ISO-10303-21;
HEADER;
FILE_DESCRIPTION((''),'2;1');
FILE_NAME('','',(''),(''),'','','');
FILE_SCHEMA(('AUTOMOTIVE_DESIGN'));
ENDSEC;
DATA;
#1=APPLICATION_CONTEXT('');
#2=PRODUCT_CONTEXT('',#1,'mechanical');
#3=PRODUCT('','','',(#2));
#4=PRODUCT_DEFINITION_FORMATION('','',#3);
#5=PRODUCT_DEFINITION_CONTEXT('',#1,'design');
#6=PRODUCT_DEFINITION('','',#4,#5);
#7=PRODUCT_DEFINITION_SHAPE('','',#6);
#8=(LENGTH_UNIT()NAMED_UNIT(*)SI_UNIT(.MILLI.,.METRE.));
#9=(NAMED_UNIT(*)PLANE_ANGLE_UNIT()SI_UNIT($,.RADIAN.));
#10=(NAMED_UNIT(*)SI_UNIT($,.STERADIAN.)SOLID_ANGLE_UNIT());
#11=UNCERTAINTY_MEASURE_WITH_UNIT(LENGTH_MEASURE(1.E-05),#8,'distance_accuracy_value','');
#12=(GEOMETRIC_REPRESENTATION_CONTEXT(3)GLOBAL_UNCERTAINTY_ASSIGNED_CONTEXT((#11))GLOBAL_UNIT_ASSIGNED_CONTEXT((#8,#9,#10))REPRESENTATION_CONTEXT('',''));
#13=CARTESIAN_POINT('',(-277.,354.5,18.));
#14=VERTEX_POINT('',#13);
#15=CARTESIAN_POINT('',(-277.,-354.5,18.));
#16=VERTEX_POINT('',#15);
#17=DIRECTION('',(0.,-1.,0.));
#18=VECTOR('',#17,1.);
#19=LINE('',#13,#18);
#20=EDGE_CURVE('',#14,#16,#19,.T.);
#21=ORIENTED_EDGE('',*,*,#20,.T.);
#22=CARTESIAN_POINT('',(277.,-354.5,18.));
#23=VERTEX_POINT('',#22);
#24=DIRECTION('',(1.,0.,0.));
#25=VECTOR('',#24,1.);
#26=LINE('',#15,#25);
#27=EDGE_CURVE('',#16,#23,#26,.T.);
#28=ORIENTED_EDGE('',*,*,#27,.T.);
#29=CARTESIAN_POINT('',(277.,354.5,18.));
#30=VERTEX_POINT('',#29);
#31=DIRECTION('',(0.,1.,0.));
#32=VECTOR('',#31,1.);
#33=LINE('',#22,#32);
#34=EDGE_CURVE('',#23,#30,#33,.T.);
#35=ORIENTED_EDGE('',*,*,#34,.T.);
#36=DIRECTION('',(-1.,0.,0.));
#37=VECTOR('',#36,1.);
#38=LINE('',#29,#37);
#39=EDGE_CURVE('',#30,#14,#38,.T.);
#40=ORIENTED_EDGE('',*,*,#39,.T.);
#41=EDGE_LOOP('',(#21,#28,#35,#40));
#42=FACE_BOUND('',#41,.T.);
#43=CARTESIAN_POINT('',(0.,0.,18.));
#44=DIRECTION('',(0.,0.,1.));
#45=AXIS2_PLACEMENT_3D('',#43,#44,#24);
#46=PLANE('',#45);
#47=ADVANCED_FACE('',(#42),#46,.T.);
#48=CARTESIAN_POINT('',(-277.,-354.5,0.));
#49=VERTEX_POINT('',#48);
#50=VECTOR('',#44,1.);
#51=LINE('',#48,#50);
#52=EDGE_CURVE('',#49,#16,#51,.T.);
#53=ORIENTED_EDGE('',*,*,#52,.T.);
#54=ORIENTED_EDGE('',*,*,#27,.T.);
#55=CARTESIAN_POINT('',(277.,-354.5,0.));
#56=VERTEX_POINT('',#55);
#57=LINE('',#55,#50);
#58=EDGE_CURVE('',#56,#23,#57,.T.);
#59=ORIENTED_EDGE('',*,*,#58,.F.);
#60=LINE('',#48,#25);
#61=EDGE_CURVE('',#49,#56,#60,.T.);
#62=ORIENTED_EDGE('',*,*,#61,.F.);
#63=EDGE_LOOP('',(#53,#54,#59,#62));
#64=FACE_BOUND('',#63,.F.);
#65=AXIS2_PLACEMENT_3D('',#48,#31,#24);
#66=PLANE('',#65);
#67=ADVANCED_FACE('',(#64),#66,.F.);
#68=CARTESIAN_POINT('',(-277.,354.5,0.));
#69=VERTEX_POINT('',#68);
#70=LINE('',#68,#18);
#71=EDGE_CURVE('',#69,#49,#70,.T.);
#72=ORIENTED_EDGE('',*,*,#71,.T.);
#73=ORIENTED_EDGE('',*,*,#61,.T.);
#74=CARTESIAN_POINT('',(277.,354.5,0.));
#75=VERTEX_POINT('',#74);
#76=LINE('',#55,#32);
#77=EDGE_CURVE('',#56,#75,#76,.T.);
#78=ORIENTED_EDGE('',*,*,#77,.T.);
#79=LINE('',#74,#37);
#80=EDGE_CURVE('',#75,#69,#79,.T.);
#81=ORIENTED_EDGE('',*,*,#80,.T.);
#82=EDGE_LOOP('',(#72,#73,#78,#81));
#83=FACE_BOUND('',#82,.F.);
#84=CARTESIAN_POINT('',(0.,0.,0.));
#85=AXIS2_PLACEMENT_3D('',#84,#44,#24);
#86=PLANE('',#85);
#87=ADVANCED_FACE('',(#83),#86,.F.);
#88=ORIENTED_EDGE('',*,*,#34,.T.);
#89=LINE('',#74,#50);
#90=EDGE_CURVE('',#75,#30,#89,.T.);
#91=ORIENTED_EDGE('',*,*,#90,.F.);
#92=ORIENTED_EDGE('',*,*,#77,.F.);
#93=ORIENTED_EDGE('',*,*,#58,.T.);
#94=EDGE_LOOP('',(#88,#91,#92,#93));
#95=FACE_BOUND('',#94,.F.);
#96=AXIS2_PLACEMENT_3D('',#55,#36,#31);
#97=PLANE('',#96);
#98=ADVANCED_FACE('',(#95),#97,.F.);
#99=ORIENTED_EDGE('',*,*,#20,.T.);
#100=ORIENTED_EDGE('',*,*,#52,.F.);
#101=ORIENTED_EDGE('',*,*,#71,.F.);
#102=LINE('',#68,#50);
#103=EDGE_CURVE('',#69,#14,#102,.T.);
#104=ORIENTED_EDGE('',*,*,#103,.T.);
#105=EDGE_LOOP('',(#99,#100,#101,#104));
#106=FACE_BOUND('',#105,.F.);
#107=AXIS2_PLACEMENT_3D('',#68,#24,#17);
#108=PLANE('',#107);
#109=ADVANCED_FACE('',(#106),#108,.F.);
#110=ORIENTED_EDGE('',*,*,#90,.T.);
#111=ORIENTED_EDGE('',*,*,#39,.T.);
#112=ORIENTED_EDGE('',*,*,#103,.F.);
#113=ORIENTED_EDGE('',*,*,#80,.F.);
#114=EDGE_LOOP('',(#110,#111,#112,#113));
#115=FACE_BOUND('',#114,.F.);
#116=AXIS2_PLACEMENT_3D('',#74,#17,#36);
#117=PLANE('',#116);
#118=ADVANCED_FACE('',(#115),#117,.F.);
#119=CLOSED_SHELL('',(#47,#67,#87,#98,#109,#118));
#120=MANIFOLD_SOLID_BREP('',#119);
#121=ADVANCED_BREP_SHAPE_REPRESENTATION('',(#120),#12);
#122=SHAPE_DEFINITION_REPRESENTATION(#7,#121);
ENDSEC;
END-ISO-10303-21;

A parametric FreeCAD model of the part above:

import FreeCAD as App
import Part
import Sketcher

V = App.Vector


def add_polygon(sketch, points):
    """Adds a closed chain of lines whose ends are joined by coincident constraints."""
    first, n = sketch.GeometryCount, len(points)
    for a, b in zip(points, points[1:] + points[:1]):
        sketch.addGeometry(Part.LineSegment(App.Vector(*a, 0), App.Vector(*b, 0)), False)
    for i in range(n):
        sketch.addConstraint(Sketcher.Constraint("Coincident", first + i, 2, first + (i + 1) % n, 1))

doc = App.newDocument("Part")
body = doc.addObject("PartDesign::Body", "Body")

# Sketch on XY plane
sketch1 = body.newObject("Sketcher::SketchObject", "Sketch")
sketch1.AttachmentSupport = (doc.getObject("XY_Plane"), [""])
sketch1.MapMode = "FlatFace"
add_polygon(sketch1, [(-277, 354), (-277, -354), (277, -354), (277, 354)])  # lines 0-3
sketch1.addConstraint(Sketcher.Constraint("Vertical", 0))
sketch1.addConstraint(Sketcher.Constraint("Horizontal", 1))
sketch1.addConstraint(Sketcher.Constraint("Vertical", 2))
sketch1.addConstraint(Sketcher.Constraint("Horizontal", 3))
sketch1.addConstraint(Sketcher.Constraint("Symmetric", 0, 2, 2, 2, -1, 1))
sketch1.addConstraint(Sketcher.Constraint("DistanceX", 1, 1, 1, 2, 554.0))
sketch1.addConstraint(Sketcher.Constraint("DistanceY", 0, 2, 0, 1, 709.0))
pad1 = body.newObject("PartDesign::Pad", "Pad")
pad1.Profile = sketch1
pad1.Length = 18

doc.recompute()
